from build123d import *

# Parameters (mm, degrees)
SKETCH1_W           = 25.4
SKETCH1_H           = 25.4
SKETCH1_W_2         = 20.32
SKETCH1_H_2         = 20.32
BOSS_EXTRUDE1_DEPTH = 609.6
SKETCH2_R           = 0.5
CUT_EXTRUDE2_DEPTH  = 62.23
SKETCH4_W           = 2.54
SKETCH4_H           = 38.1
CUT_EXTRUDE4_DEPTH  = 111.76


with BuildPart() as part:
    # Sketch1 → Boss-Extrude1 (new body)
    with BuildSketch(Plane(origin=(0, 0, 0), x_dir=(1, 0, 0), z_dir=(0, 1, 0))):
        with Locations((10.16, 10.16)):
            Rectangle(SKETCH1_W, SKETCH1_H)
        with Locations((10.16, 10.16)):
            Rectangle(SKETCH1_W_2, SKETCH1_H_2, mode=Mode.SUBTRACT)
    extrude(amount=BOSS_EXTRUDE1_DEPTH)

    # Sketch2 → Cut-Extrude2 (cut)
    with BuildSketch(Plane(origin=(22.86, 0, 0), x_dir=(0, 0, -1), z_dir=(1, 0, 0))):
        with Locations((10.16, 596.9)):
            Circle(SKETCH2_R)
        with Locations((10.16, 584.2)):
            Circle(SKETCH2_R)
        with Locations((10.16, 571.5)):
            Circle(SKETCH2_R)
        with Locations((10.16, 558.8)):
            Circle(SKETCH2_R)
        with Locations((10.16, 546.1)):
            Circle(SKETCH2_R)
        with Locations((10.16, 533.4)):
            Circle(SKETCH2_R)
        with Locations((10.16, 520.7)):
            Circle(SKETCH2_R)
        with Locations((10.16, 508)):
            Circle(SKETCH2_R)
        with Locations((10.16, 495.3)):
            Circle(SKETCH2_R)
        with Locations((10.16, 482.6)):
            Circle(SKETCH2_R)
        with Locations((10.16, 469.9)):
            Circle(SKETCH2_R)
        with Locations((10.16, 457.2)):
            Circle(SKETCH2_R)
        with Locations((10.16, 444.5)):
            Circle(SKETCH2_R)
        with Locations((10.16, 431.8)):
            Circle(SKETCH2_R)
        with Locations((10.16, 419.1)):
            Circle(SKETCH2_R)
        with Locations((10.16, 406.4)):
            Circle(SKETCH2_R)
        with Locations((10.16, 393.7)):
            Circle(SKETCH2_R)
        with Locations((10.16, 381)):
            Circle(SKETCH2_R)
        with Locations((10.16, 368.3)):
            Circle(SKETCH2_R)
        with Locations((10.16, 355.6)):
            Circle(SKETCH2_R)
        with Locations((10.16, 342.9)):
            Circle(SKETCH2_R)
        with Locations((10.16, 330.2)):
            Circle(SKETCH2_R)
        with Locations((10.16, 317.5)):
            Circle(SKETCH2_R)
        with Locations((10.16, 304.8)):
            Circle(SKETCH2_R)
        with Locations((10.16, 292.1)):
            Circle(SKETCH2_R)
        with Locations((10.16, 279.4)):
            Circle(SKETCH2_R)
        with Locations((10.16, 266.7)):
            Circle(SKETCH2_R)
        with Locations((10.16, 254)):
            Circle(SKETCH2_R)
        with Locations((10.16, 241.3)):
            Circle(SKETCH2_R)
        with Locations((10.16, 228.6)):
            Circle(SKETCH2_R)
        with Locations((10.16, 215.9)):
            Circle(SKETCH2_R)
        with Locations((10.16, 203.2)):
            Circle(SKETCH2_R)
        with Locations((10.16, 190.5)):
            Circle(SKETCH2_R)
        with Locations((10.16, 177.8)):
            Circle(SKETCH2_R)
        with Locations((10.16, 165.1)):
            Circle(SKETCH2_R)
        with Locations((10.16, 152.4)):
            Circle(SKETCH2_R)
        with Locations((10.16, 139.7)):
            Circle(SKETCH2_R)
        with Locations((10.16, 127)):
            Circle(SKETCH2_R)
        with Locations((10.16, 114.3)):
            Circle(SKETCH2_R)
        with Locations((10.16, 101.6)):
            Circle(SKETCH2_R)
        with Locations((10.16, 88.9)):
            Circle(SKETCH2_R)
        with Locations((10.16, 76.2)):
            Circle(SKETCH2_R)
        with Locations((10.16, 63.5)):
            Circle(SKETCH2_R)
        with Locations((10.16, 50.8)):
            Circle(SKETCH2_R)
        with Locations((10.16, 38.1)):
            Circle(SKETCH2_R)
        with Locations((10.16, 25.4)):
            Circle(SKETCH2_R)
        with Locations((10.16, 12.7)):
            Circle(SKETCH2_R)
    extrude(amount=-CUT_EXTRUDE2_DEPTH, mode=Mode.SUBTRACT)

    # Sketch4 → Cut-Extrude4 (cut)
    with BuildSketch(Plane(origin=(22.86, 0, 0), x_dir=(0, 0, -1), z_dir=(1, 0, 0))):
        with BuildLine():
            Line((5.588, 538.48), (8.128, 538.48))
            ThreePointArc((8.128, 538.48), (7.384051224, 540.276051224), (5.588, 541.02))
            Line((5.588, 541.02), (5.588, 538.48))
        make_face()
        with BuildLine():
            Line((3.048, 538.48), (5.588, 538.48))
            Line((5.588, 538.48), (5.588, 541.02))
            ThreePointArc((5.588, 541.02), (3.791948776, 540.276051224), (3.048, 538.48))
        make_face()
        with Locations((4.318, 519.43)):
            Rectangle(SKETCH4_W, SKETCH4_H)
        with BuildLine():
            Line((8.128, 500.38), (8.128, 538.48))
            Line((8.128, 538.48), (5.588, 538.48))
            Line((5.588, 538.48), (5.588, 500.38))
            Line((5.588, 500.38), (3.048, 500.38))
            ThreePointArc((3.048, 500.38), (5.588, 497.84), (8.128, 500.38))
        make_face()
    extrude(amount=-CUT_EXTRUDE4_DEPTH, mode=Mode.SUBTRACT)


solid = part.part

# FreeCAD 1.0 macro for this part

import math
import FreeCAD as App
import Part
import Sketcher

V = App.Vector
Q = App.Units.Quantity


def add_polygon(sketch, points):
    """Adds a closed chain of lines whose ends are joined by coincident constraints."""
    first, n = sketch.GeometryCount, len(points)
    for a, b in zip(points, points[1:] + points[:1]):
        sketch.addGeometry(Part.LineSegment(App.Vector(*a, 0), App.Vector(*b, 0)), False)
    for i in range(n):
        sketch.addConstraint(Sketcher.Constraint("Coincident", first + i, 2, first + (i + 1) % n, 1))

doc = App.newDocument("Part")
body = doc.addObject("PartDesign::Body", "Body")

sketch1 = body.newObject("Sketcher::SketchObject", "Sketch")
sketch1.AttachmentSupport = (doc.getObject("XZ_Plane"), [""])
sketch1.MapMode = "FlatFace"
add_polygon(sketch1, [(-3, -23), (-3, 3), (23, 3), (23, -23)])
add_polygon(sketch1, [(20, 0), (0, 0), (0, -20), (20, -20)])
sketch1.addConstraint([
    Sketcher.Constraint("Vertical", 0),
    Sketcher.Constraint("Horizontal", 1),
    Sketcher.Constraint("Vertical", 2),
    Sketcher.Constraint("Horizontal", 3),
    Sketcher.Constraint("Horizontal", 4),
    Sketcher.Constraint("Vertical", 5),
    Sketcher.Constraint("Horizontal", 6),
    Sketcher.Constraint("Vertical", 7),
    Sketcher.Constraint("Coincident", 4, 2, -1, 1),
    Sketcher.Constraint("Equal", 3, 0),
    Sketcher.Constraint("Equal", 6, 5),
    Sketcher.Constraint("DistanceX", 1, 1, 1, 2, Q("1 in")),
    Sketcher.Constraint("DistanceX", 4, 2, 4, 1, Q("0.8 in")),
    Sketcher.Constraint("DistanceX", 0, 2, -1, 1, Q("0.1 in")),
    Sketcher.Constraint("DistanceY", -1, 1, 0, 2, Q("0.1 in")),
])
pad1 = body.newObject("PartDesign::Pad", "Pad")
pad1.Profile = sketch1
pad1.Length = Q("24 in")
pad1.Reversed = True

sketch2 = body.newObject("Sketcher::SketchObject", "Sketch001")
sketch2.AttachmentSupport = (doc.getObject("YZ_Plane"), [""])
sketch2.MapMode = "FlatFace"
sketch2.AttachmentOffset = App.Placement(V(0, 0, 0.9 * 25.4), App.Rotation())
sketch2.addGeometry([
    Part.Circle(V(596.9, -10.2, 0), V(0, 0, 1), 0.5),
    Part.Circle(V(584.2, -10.2, 0), V(0, 0, 1), 0.5),
    Part.Circle(V(571.5, -10.2, 0), V(0, 0, 1), 0.5),
    Part.Circle(V(558.8, -10.2, 0), V(0, 0, 1), 0.5),
    Part.Circle(V(546.1, -10.2, 0), V(0, 0, 1), 0.5),
    Part.Circle(V(533.4, -10.2, 0), V(0, 0, 1), 0.5),
    Part.Circle(V(520.7, -10.2, 0), V(0, 0, 1), 0.5),
    Part.Circle(V(508, -10.2, 0), V(0, 0, 1), 0.5),
    Part.Circle(V(495.3, -10.2, 0), V(0, 0, 1), 0.5),
    Part.Circle(V(482.6, -10.2, 0), V(0, 0, 1), 0.5),
    Part.Circle(V(469.9, -10.2, 0), V(0, 0, 1), 0.5),
    Part.Circle(V(457.2, -10.2, 0), V(0, 0, 1), 0.5),
    Part.Circle(V(444.5, -10.2, 0), V(0, 0, 1), 0.5),
    Part.Circle(V(431.8, -10.2, 0), V(0, 0, 1), 0.5),
    Part.Circle(V(419.1, -10.2, 0), V(0, 0, 1), 0.5),
    Part.Circle(V(406.4, -10.2, 0), V(0, 0, 1), 0.5),
    Part.Circle(V(393.7, -10.2, 0), V(0, 0, 1), 0.5),
    Part.Circle(V(381, -10.2, 0), V(0, 0, 1), 0.5),
    Part.Circle(V(368.3, -10.2, 0), V(0, 0, 1), 0.5),
    Part.Circle(V(355.6, -10.2, 0), V(0, 0, 1), 0.5),
    Part.Circle(V(342.9, -10.2, 0), V(0, 0, 1), 0.5),
    Part.Circle(V(330.2, -10.2, 0), V(0, 0, 1), 0.5),
    Part.Circle(V(317.5, -10.2, 0), V(0, 0, 1), 0.5),
    Part.Circle(V(304.8, -10.2, 0), V(0, 0, 1), 0.5),
    Part.Circle(V(292.1, -10.2, 0), V(0, 0, 1), 0.5),
    Part.Circle(V(279.4, -10.2, 0), V(0, 0, 1), 0.5),
    Part.Circle(V(266.7, -10.2, 0), V(0, 0, 1), 0.5),
    Part.Circle(V(254, -10.2, 0), V(0, 0, 1), 0.5),
    Part.Circle(V(241.3, -10.2, 0), V(0, 0, 1), 0.5),
    Part.Circle(V(228.6, -10.2, 0), V(0, 0, 1), 0.5),
    Part.Circle(V(215.9, -10.2, 0), V(0, 0, 1), 0.5),
    Part.Circle(V(203.2, -10.2, 0), V(0, 0, 1), 0.5),
    Part.Circle(V(190.5, -10.2, 0), V(0, 0, 1), 0.5),
    Part.Circle(V(177.8, -10.2, 0), V(0, 0, 1), 0.5),
    Part.Circle(V(165.1, -10.2, 0), V(0, 0, 1), 0.5),
    Part.Circle(V(152.4, -10.2, 0), V(0, 0, 1), 0.5),
    Part.Circle(V(139.7, -10.2, 0), V(0, 0, 1), 0.5),
    Part.Circle(V(127, -10.2, 0), V(0, 0, 1), 0.5),
    Part.Circle(V(114.3, -10.2, 0), V(0, 0, 1), 0.5),
    Part.Circle(V(101.6, -10.2, 0), V(0, 0, 1), 0.5),
    Part.Circle(V(88.9, -10.2, 0), V(0, 0, 1), 0.5),
    Part.Circle(V(76.2, -10.2, 0), V(0, 0, 1), 0.5),
    Part.Circle(V(63.5, -10.2, 0), V(0, 0, 1), 0.5),
    Part.Circle(V(50.8, -10.2, 0), V(0, 0, 1), 0.5),
    Part.Circle(V(38.1, -10.2, 0), V(0, 0, 1), 0.5),
    Part.Circle(V(25.4, -10.2, 0), V(0, 0, 1), 0.5),
    Part.Circle(V(12.7, -10.2, 0), V(0, 0, 1), 0.5),
], False)
sketch2.addConstraint([
    Sketcher.Constraint("Equal", 0, 1),
    Sketcher.Constraint("Equal", 1, 2),
    Sketcher.Constraint("Equal", 2, 3),
    Sketcher.Constraint("Equal", 3, 4),
    Sketcher.Constraint("Equal", 4, 5),
    Sketcher.Constraint("Equal", 5, 6),
    Sketcher.Constraint("Equal", 6, 7),
    Sketcher.Constraint("Equal", 7, 8),
    Sketcher.Constraint("Equal", 8, 9),
    Sketcher.Constraint("Equal", 9, 10),
    Sketcher.Constraint("Equal", 10, 11),
    Sketcher.Constraint("Equal", 11, 12),
    Sketcher.Constraint("Equal", 12, 13),
    Sketcher.Constraint("Equal", 13, 14),
    Sketcher.Constraint("Equal", 14, 15),
    Sketcher.Constraint("Equal", 15, 16),
    Sketcher.Constraint("Equal", 16, 17),
    Sketcher.Constraint("Equal", 17, 18),
    Sketcher.Constraint("Equal", 18, 19),
    Sketcher.Constraint("Equal", 19, 20),
    Sketcher.Constraint("Equal", 20, 21),
    Sketcher.Constraint("Equal", 21, 22),
    Sketcher.Constraint("Equal", 22, 23),
    Sketcher.Constraint("Equal", 23, 24),
    Sketcher.Constraint("Equal", 24, 25),
    Sketcher.Constraint("Equal", 25, 26),
    Sketcher.Constraint("Equal", 26, 27),
    Sketcher.Constraint("Equal", 27, 28),
    Sketcher.Constraint("Equal", 28, 29),
    Sketcher.Constraint("Equal", 29, 30),
    Sketcher.Constraint("Equal", 30, 31),
    Sketcher.Constraint("Equal", 31, 32),
    Sketcher.Constraint("Equal", 32, 33),
    Sketcher.Constraint("Equal", 33, 34),
    Sketcher.Constraint("Equal", 34, 35),
    Sketcher.Constraint("Equal", 35, 36),
    Sketcher.Constraint("Equal", 36, 37),
    Sketcher.Constraint("Equal", 37, 38),
    Sketcher.Constraint("Equal", 38, 39),
    Sketcher.Constraint("Equal", 39, 40),
    Sketcher.Constraint("Equal", 40, 41),
    Sketcher.Constraint("Equal", 41, 42),
    Sketcher.Constraint("Equal", 42, 43),
    Sketcher.Constraint("Equal", 43, 44),
    Sketcher.Constraint("Equal", 44, 45),
    Sketcher.Constraint("Equal", 45, 46),
    Sketcher.Constraint("Horizontal", 0, 3, 1, 3),
    Sketcher.Constraint("Horizontal", 1, 3, 2, 3),
    Sketcher.Constraint("Horizontal", 2, 3, 3, 3),
    Sketcher.Constraint("Horizontal", 3, 3, 4, 3),
    Sketcher.Constraint("Horizontal", 4, 3, 5, 3),
    Sketcher.Constraint("Horizontal", 5, 3, 6, 3),
    Sketcher.Constraint("Horizontal", 6, 3, 7, 3),
    Sketcher.Constraint("Horizontal", 7, 3, 8, 3),
    Sketcher.Constraint("Horizontal", 8, 3, 9, 3),
    Sketcher.Constraint("Horizontal", 9, 3, 10, 3),
    Sketcher.Constraint("Horizontal", 10, 3, 11, 3),
    Sketcher.Constraint("Horizontal", 11, 3, 12, 3),
    Sketcher.Constraint("Horizontal", 12, 3, 13, 3),
    Sketcher.Constraint("Horizontal", 13, 3, 14, 3),
    Sketcher.Constraint("Horizontal", 14, 3, 15, 3),
    Sketcher.Constraint("Horizontal", 15, 3, 16, 3),
    Sketcher.Constraint("Horizontal", 16, 3, 17, 3),
    Sketcher.Constraint("Horizontal", 17, 3, 18, 3),
    Sketcher.Constraint("Horizontal", 18, 3, 19, 3),
    Sketcher.Constraint("Horizontal", 19, 3, 20, 3),
    Sketcher.Constraint("Horizontal", 20, 3, 21, 3),
    Sketcher.Constraint("Horizontal", 21, 3, 22, 3),
    Sketcher.Constraint("Horizontal", 22, 3, 23, 3),
    Sketcher.Constraint("Horizontal", 23, 3, 24, 3),
    Sketcher.Constraint("Horizontal", 24, 3, 25, 3),
    Sketcher.Constraint("Horizontal", 25, 3, 26, 3),
    Sketcher.Constraint("Horizontal", 26, 3, 27, 3),
    Sketcher.Constraint("Horizontal", 27, 3, 28, 3),
    Sketcher.Constraint("Horizontal", 28, 3, 29, 3),
    Sketcher.Constraint("Horizontal", 29, 3, 30, 3),
    Sketcher.Constraint("Horizontal", 30, 3, 31, 3),
    Sketcher.Constraint("Horizontal", 31, 3, 32, 3),
    Sketcher.Constraint("Horizontal", 32, 3, 33, 3),
    Sketcher.Constraint("Horizontal", 33, 3, 34, 3),
    Sketcher.Constraint("Horizontal", 34, 3, 35, 3),
    Sketcher.Constraint("Horizontal", 35, 3, 36, 3),
    Sketcher.Constraint("Horizontal", 36, 3, 37, 3),
    Sketcher.Constraint("Horizontal", 37, 3, 38, 3),
    Sketcher.Constraint("Horizontal", 38, 3, 39, 3),
    Sketcher.Constraint("Horizontal", 39, 3, 40, 3),
    Sketcher.Constraint("Horizontal", 40, 3, 41, 3),
    Sketcher.Constraint("Horizontal", 41, 3, 42, 3),
    Sketcher.Constraint("Horizontal", 42, 3, 43, 3),
    Sketcher.Constraint("Horizontal", 43, 3, 44, 3),
    Sketcher.Constraint("Horizontal", 44, 3, 45, 3),
    Sketcher.Constraint("Horizontal", 45, 3, 46, 3),
    Sketcher.Constraint("DistanceX", -1, 1, 1, 3, Q("23 in")),
    Sketcher.Constraint("DistanceX", -1, 1, 3, 3, Q("22 in")),
    Sketcher.Constraint("DistanceX", -1, 1, 5, 3, Q("21 in")),
    Sketcher.Constraint("DistanceX", -1, 1, 7, 3, Q("20 in")),
    Sketcher.Constraint("DistanceX", -1, 1, 9, 3, Q("19 in")),
    Sketcher.Constraint("DistanceX", -1, 1, 11, 3, Q("18 in")),
    Sketcher.Constraint("DistanceX", -1, 1, 13, 3, Q("17 in")),
    Sketcher.Constraint("DistanceX", -1, 1, 15, 3, Q("16 in")),
    Sketcher.Constraint("DistanceX", -1, 1, 17, 3, Q("15 in")),
    Sketcher.Constraint("DistanceX", -1, 1, 19, 3, Q("14 in")),
    Sketcher.Constraint("DistanceX", -1, 1, 21, 3, Q("13 in")),
    Sketcher.Constraint("DistanceX", -1, 1, 23, 3, Q("12 in")),
    Sketcher.Constraint("DistanceX", -1, 1, 25, 3, Q("11 in")),
    Sketcher.Constraint("DistanceX", -1, 1, 27, 3, Q("10 in")),
    Sketcher.Constraint("DistanceX", -1, 1, 29, 3, Q("9 in")),
    Sketcher.Constraint("DistanceX", -1, 1, 31, 3, Q("8 in")),
    Sketcher.Constraint("DistanceX", -1, 1, 33, 3, Q("7 in")),
    Sketcher.Constraint("DistanceX", -1, 1, 35, 3, Q("6 in")),
    Sketcher.Constraint("DistanceX", -1, 1, 37, 3, Q("5 in")),
    Sketcher.Constraint("DistanceX", -1, 1, 39, 3, Q("4 in")),
    Sketcher.Constraint("DistanceX", -1, 1, 41, 3, Q("3 in")),
    Sketcher.Constraint("DistanceX", -1, 1, 43, 3, Q("2 in")),
    Sketcher.Constraint("DistanceX", -1, 1, 45, 3, Q("1 in")),
    Sketcher.Constraint("DistanceX", 2, 3, 0, 3, Q("1 in")),
    Sketcher.Constraint("DistanceX", 4, 3, 2, 3, Q("1 in")),
    Sketcher.Constraint("DistanceX", 6, 3, 4, 3, Q("1 in")),
    Sketcher.Constraint("DistanceX", 8, 3, 6, 3, Q("1 in")),
    Sketcher.Constraint("DistanceX", 10, 3, 8, 3, Q("1 in")),
    Sketcher.Constraint("DistanceX", 12, 3, 10, 3, Q("1 in")),
    Sketcher.Constraint("DistanceX", 14, 3, 12, 3, Q("1 in")),
    Sketcher.Constraint("DistanceX", 16, 3, 14, 3, Q("1 in")),
    Sketcher.Constraint("DistanceX", 18, 3, 16, 3, Q("1 in")),
    Sketcher.Constraint("DistanceX", 20, 3, 18, 3, Q("1 in")),
    Sketcher.Constraint("DistanceX", 22, 3, 20, 3, Q("1 in")),
    Sketcher.Constraint("DistanceX", 24, 3, 22, 3, Q("1 in")),
    Sketcher.Constraint("DistanceX", 26, 3, 24, 3, Q("1 in")),
    Sketcher.Constraint("DistanceX", 28, 3, 26, 3, Q("1 in")),
    Sketcher.Constraint("DistanceX", 30, 3, 28, 3, Q("1 in")),
    Sketcher.Constraint("DistanceX", 32, 3, 30, 3, Q("1 in")),
    Sketcher.Constraint("DistanceX", 34, 3, 32, 3, Q("1 in")),
    Sketcher.Constraint("DistanceX", 36, 3, 34, 3, Q("1 in")),
    Sketcher.Constraint("DistanceX", 38, 3, 36, 3, Q("1 in")),
    Sketcher.Constraint("DistanceX", 40, 3, 38, 3, Q("1 in")),
    Sketcher.Constraint("DistanceX", 42, 3, 40, 3, Q("1 in")),
    Sketcher.Constraint("DistanceX", 44, 3, 42, 3, Q("1 in")),
    Sketcher.Constraint("DistanceX", 46, 3, 44, 3, Q("1 in")),
    Sketcher.Constraint("DistanceX", -1, 1, 0, 3, Q("23.5 in")),
    Sketcher.Constraint("DistanceY", 0, 3, -1, 1, Q("0.4 in")),
    Sketcher.Constraint("Diameter", 0, 1.0),
])
pocket1 = body.newObject("PartDesign::Pocket", "Pocket")
pocket1.Profile = sketch2
pocket1.Length = Q("2.45 in")

sketch3 = body.newObject("Sketcher::SketchObject", "Sketch002")
sketch3.AttachmentSupport = (doc.getObject("YZ_Plane"), [""])
sketch3.MapMode = "FlatFace"
sketch3.AttachmentOffset = App.Placement(V(0, 0, 0.9 * 25.4), App.Rotation())
sketch3.addGeometry([
    Part.ArcOfCircle(Part.Circle(V(538.5, -5.6, 0), V(0, 0, 1), 2.5), math.radians(-90), math.radians(0)),
    Part.ArcOfCircle(Part.Circle(V(538.5, -5.6, 0), V(0, 0, 1), 2.5), math.radians(0), math.radians(90)),
    Part.LineSegment(V(538.5, -3, 0), V(500.4, -3, 0)),
    Part.ArcOfCircle(Part.Circle(V(500.4, -5.6, 0), V(0, 0, 1), 2.5), math.radians(90), math.radians(270)),
    Part.LineSegment(V(500.4, -8.1, 0), V(538.5, -8.1, 0)),
], False)
sketch3.addConstraint([
    Sketcher.Constraint("Tangent", 0, 2, 1, 1),
    Sketcher.Constraint("Tangent", 1, 2, 2, 1),
    Sketcher.Constraint("Tangent", 2, 2, 3, 1),
    Sketcher.Constraint("Tangent", 3, 2, 4, 1),
    Sketcher.Constraint("Tangent", 4, 2, 0, 1),
    Sketcher.Constraint("Horizontal", 2),
    Sketcher.Constraint("Horizontal", 4),
    Sketcher.Constraint("Equal", 0, 1),
    Sketcher.Constraint("Horizontal", 3, 3, 0, 2),
    Sketcher.Constraint("Radius", 0, Q("0.1 in")),
    Sketcher.Constraint("DistanceX", 2, 2, 2, 1, Q("1.5 in")),
    Sketcher.Constraint("DistanceX", -1, 1, 0, 3, Q("21.2 in")),
    Sketcher.Constraint("DistanceY", 0, 3, -1, 1, Q("0.22 in")),
])
pocket2 = body.newObject("PartDesign::Pocket", "Pocket001")
pocket2.Profile = sketch3
pocket2.Length = Q("4.4 in")

doc.recompute()
